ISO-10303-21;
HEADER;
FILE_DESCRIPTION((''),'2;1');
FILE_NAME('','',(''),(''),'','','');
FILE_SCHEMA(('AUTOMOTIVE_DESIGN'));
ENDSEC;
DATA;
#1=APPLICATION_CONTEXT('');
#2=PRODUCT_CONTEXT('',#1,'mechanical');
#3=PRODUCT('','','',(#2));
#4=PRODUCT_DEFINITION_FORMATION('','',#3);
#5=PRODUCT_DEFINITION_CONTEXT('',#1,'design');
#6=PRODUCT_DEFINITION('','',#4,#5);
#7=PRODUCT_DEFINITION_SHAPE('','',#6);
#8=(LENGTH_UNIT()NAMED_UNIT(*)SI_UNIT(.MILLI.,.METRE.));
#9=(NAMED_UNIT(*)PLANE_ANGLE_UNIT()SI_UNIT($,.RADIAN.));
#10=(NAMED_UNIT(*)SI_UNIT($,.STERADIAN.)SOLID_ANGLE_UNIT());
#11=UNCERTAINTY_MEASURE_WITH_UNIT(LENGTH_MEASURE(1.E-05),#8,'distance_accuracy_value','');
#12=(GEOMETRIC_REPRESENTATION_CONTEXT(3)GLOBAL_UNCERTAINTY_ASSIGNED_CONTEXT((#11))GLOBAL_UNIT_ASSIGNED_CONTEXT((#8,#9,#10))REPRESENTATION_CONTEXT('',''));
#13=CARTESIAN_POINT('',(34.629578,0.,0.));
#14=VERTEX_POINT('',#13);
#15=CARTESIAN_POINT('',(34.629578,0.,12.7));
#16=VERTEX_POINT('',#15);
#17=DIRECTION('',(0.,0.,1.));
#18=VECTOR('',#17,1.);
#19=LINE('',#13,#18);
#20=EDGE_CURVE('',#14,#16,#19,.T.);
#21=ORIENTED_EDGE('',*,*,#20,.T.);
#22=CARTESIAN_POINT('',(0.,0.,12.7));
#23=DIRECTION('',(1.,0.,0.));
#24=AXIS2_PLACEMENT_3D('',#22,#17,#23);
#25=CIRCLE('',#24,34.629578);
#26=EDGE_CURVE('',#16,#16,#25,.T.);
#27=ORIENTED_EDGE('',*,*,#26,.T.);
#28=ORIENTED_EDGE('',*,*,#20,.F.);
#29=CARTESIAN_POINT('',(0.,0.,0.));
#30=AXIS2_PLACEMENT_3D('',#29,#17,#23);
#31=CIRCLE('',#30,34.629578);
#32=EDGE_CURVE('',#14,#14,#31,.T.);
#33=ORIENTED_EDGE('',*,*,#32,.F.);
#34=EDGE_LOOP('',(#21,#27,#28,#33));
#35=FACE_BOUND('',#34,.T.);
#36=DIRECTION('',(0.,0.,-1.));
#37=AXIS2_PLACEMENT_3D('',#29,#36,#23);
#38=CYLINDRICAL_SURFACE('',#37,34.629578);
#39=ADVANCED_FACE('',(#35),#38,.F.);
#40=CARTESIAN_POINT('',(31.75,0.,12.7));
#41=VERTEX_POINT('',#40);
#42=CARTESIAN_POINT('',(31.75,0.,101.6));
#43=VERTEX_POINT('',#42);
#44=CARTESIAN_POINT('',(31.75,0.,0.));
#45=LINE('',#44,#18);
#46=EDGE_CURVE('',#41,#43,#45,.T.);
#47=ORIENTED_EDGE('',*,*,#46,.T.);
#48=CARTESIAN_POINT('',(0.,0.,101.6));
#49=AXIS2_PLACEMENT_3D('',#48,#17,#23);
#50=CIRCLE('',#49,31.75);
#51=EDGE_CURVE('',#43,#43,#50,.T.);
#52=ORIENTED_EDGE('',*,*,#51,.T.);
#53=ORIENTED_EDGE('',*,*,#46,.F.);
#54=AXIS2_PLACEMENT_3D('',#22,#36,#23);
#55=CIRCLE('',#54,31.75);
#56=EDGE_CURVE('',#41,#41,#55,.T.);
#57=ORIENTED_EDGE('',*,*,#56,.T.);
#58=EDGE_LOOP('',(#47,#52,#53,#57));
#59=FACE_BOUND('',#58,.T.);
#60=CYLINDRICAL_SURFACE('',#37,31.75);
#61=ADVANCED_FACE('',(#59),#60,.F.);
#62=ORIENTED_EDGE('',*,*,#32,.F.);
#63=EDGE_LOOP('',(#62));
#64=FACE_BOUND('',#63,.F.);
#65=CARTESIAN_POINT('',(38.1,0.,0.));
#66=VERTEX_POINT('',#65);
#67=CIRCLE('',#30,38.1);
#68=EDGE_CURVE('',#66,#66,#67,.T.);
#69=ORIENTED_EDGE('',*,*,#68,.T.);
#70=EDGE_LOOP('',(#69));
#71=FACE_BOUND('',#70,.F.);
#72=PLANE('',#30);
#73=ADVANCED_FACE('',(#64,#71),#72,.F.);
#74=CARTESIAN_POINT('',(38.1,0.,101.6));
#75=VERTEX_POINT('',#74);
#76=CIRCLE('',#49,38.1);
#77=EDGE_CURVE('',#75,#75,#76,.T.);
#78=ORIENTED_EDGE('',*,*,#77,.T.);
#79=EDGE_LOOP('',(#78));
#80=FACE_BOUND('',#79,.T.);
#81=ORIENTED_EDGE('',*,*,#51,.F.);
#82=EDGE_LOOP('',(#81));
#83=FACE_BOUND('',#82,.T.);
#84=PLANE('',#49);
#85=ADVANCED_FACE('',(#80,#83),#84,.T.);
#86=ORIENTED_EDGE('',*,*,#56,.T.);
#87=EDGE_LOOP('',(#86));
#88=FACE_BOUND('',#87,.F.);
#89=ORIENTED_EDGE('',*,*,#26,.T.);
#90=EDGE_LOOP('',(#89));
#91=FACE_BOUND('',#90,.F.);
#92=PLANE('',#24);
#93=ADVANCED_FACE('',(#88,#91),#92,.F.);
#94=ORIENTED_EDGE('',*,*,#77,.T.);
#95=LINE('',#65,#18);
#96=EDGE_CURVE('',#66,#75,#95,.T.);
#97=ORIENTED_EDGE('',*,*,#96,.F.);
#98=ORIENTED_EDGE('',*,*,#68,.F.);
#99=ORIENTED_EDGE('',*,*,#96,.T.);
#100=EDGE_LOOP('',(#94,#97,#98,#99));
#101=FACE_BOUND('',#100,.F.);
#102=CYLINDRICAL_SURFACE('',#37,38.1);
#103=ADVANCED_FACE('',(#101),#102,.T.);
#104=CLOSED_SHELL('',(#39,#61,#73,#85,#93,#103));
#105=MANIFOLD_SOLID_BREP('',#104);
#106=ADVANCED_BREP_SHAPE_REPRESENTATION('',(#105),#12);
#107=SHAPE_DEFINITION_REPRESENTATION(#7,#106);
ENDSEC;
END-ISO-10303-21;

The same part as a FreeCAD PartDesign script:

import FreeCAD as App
import Part
import Sketcher
Q = App.Units.Quantity

doc = App.newDocument("Part")
params = doc.addObject("Spreadsheet::Sheet", "Params")
for row, (alias, value) in enumerate([
    ("sketch1_diameter", "3 in"),
    ("sketch1_diameter2", "2.5 in"),
    ("pad1_length", "4 in"),
    ("pocket1_length", "0.5 in"),
], start=1):
    params.set(f"A{row}", alias)
    params.set(f"B{row}", "=" + value)
    params.setAlias(f"B{row}", alias)

body = doc.addObject("PartDesign::Body", "Body")

# Sketch on XY plane
sketch1 = body.newObject("Sketcher::SketchObject", "Sketch")
sketch1.AttachmentSupport = (doc.getObject("XY_Plane"), [""])
sketch1.MapMode = "FlatFace"
sketch1.addGeometry([
    Part.Circle(App.Vector(0, 0, 0), App.Vector(0, 0, 1), 38),
    Part.Circle(App.Vector(0, 0, 0), App.Vector(0, 0, 1), 32),
], False)
sketch1.addConstraint([
    Sketcher.Constraint("Coincident", 0, 3, -1, 1),
    Sketcher.Constraint("Coincident", 1, 3, -1, 1),
    Sketcher.Constraint("Diameter", 0, Q("3 in")),
    Sketcher.Constraint("Diameter", 1, Q("2.5 in")),
])
sketch1.setExpression("Constraints[2]", "Params.sketch1_diameter")
sketch1.setExpression("Constraints[3]", "Params.sketch1_diameter2")
pad1 = body.newObject("PartDesign::Pad", "Pad")
pad1.Profile = sketch1
pad1.setExpression("Length", "Params.pad1_length")

# Sketch on XY plane
sketch2 = body.newObject("Sketcher::SketchObject", "Sketch001")
sketch2.AttachmentSupport = (doc.getObject("XY_Plane"), [""])
sketch2.MapMode = "FlatFace"
sketch2.addGeometry(Part.Circle(App.Vector(0, 0, 0), App.Vector(0, 0, 1), 35), False)
sketch2.addConstraint([
    Sketcher.Constraint("Coincident", 0, 3, -1, 1),
    Sketcher.Constraint("Diameter", 0, Q("69.259156 mm")),
])
pocket1 = body.newObject("PartDesign::Pocket", "Pocket")
pocket1.Profile = sketch2
pocket1.setExpression("Length", "Params.pocket1_length")
pocket1.Reversed = True

doc.recompute()
